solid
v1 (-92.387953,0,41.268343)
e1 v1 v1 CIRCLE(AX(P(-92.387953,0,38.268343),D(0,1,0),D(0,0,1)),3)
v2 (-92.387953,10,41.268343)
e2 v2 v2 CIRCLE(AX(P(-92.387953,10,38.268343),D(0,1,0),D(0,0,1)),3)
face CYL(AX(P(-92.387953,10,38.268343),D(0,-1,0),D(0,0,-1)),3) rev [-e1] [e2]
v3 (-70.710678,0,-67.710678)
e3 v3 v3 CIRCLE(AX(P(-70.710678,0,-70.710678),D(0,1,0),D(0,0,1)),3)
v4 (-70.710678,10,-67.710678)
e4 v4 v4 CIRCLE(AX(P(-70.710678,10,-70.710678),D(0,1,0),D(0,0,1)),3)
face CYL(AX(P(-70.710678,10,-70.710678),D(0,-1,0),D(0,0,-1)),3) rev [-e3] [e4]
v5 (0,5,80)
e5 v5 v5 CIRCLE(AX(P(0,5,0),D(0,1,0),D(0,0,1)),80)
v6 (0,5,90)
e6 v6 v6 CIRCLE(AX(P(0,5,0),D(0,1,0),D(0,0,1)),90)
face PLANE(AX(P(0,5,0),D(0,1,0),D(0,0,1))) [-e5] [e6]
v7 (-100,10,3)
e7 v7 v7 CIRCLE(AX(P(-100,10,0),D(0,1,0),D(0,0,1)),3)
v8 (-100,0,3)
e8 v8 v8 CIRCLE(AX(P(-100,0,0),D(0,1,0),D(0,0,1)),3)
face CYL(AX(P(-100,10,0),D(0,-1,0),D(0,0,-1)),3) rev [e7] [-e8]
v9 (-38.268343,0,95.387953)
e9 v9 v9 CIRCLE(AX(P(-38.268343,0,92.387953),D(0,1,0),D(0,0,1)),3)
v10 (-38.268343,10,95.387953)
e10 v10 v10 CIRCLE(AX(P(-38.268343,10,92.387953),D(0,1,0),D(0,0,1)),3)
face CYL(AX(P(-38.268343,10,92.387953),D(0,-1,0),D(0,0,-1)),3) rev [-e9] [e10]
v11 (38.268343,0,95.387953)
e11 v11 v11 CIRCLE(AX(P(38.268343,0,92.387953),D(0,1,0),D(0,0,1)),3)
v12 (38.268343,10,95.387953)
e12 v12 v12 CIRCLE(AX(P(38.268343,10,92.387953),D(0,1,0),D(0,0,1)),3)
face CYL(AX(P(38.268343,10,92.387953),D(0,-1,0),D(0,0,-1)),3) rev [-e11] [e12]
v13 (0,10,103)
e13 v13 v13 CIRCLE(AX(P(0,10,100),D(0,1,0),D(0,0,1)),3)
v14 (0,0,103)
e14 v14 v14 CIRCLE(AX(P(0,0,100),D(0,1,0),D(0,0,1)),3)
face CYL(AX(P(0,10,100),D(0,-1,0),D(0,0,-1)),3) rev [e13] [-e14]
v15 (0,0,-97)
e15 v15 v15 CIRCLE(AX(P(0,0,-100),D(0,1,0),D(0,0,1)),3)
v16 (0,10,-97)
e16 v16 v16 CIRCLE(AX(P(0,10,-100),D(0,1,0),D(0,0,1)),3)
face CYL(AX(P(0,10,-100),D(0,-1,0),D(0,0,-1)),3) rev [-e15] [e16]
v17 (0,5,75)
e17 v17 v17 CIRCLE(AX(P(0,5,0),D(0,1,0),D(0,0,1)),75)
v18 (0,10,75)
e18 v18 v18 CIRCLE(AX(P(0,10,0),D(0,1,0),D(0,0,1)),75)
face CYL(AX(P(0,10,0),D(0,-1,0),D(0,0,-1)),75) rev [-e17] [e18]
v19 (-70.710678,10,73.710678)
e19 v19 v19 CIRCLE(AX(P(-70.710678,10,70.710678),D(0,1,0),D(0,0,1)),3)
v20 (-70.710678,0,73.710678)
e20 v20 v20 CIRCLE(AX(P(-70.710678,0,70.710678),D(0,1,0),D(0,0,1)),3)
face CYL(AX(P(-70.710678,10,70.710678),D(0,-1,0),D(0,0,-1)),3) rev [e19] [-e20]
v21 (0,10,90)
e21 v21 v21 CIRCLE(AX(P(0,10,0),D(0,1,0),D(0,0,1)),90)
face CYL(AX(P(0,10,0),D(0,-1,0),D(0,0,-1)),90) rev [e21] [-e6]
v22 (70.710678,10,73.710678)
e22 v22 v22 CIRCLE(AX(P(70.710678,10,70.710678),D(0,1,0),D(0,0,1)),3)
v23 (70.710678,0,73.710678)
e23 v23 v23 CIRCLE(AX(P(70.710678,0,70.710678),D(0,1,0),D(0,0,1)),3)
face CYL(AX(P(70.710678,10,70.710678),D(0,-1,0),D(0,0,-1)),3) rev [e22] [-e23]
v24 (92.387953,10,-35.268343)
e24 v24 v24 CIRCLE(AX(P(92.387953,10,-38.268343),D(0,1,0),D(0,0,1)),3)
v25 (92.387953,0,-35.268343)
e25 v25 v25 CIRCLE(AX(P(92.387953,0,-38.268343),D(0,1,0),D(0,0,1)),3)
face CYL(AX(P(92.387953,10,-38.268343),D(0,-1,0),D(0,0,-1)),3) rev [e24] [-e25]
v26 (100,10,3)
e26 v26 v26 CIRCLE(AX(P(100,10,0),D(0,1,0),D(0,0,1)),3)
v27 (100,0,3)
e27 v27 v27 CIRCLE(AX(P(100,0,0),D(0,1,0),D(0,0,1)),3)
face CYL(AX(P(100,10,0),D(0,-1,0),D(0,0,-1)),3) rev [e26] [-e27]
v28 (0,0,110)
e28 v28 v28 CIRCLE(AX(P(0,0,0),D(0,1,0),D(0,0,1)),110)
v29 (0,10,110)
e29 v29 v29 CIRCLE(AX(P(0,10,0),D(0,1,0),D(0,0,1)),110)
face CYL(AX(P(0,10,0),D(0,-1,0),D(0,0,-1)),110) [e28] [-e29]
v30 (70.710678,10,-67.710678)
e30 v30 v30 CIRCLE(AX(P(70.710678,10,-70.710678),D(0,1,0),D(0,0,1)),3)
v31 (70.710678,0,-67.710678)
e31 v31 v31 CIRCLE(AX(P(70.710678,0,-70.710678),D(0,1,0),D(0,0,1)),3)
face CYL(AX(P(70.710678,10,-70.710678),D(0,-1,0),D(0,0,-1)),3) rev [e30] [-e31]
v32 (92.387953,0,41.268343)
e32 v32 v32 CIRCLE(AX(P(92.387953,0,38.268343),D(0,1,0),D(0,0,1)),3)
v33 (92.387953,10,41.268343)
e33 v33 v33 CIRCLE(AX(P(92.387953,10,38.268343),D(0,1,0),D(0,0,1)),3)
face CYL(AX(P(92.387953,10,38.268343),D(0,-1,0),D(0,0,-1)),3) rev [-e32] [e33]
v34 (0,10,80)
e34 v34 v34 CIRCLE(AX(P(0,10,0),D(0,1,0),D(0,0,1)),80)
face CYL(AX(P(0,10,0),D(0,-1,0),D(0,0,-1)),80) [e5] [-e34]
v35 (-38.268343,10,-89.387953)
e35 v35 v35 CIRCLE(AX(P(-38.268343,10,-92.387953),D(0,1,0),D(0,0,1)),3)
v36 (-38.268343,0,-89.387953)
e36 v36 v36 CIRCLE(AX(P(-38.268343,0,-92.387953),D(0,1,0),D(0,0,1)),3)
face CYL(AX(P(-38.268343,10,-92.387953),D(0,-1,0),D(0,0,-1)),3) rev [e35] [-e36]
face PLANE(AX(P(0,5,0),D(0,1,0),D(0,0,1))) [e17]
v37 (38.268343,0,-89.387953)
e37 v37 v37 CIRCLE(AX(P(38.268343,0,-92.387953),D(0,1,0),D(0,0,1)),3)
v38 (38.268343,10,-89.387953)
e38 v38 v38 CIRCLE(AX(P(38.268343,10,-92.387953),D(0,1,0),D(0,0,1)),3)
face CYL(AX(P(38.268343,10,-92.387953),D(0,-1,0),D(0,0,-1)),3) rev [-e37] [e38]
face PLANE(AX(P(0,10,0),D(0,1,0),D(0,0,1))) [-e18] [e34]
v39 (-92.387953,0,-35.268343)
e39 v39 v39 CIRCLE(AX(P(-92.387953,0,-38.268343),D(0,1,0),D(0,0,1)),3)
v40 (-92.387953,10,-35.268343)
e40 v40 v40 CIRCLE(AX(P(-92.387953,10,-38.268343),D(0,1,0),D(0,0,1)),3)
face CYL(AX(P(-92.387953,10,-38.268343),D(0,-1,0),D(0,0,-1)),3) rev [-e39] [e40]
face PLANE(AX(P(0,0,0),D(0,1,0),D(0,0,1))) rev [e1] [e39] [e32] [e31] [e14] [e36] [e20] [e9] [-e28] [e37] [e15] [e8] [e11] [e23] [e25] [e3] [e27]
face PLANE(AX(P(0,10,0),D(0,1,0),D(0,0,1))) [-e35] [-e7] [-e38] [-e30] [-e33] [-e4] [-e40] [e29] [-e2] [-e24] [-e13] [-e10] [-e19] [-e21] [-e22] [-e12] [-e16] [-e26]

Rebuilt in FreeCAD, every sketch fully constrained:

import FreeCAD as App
import Part
import Sketcher
from FreeCAD import Vector

doc = App.newDocument("Part")
params = doc.addObject("Spreadsheet::Sheet", "Params")
for row, (alias, value) in enumerate([
    ("sketch1_diameter", "220 mm"),
    ("sketch1_diameter2", "6 mm"),
    ("sketch1_diameter3", "180 mm"),
    ("pad1_length", "10 mm"),
    ("sketch2_diameter", "160 mm"),
    ("sketch2_diameter2", "150 mm"),
    ("pad2_length", "10 mm"),
    ("sketch3_diameter", "180 mm"),
    ("sketch3_diameter2", "160 mm"),
    ("sketch3_diameter3", "150 mm"),
    ("pad3_length", "5 mm"),
], start=1):
    params.set(f"A{row}", alias)
    params.set(f"B{row}", "=" + value)
    params.setAlias(f"B{row}", alias)

body = doc.addObject("PartDesign::Body", "Body")

sketch1 = body.newObject("Sketcher::SketchObject", "Sketch")
sketch1.AttachmentSupport = (doc.getObject("XZ_Plane"), [""])
sketch1.MapMode = "FlatFace"
sketch1.addGeometry([
    Part.Circle(Vector(0, 0, 0), Vector(0, 0, 1), 110),
    Part.Circle(Vector(-70.7, -70.7, 0), Vector(0, 0, 1), 3),
    Part.Circle(Vector(-92.4, -38.3, 0), Vector(0, 0, 1), 3),
    Part.Circle(Vector(-38.3, -92.4, 0), Vector(0, 0, 1), 3),
    Part.Circle(Vector(0, -100, 0), Vector(0, 0, 1), 3),
    Part.Circle(Vector(0, 0, 0), Vector(0, 0, 1), 90),
    Part.Circle(Vector(-100, 0, 0), Vector(0, 0, 1), 3),
    Part.Circle(Vector(-92.4, 38.3, 0), Vector(0, 0, 1), 3),
    Part.Circle(Vector(-70.7, 70.7, 0), Vector(0, 0, 1), 3),
    Part.Circle(Vector(-38.3, 92.4, 0), Vector(0, 0, 1), 3),
    Part.Circle(Vector(38.3, -92.4, 0), Vector(0, 0, 1), 3),
    Part.Circle(Vector(70.7, -70.7, 0), Vector(0, 0, 1), 3),
    Part.Circle(Vector(92.4, -38.3, 0), Vector(0, 0, 1), 3),
    Part.Circle(Vector(100, 0, 0), Vector(0, 0, 1), 3),
    Part.Circle(Vector(0, 100, 0), Vector(0, 0, 1), 3),
    Part.Circle(Vector(38.3, 92.4, 0), Vector(0, 0, 1), 3),
    Part.Circle(Vector(92.4, 38.3, 0), Vector(0, 0, 1), 3),
    Part.Circle(Vector(70.7, 70.7, 0), Vector(0, 0, 1), 3),
], False)
sketch1.addConstraint([
    Sketcher.Constraint("Coincident", 0, 3, -1, 1),
    Sketcher.Constraint("Coincident", 5, 3, -1, 1),
    Sketcher.Constraint("Equal", 1, 2),
    Sketcher.Constraint("Equal", 2, 3),
    Sketcher.Constraint("Equal", 3, 4),
    Sketcher.Constraint("Equal", 4, 6),
    Sketcher.Constraint("Equal", 6, 7),
    Sketcher.Constraint("Equal", 7, 8),
    Sketcher.Constraint("Equal", 8, 9),
    Sketcher.Constraint("Equal", 9, 10),
    Sketcher.Constraint("Equal", 10, 11),
    Sketcher.Constraint("Equal", 11, 12),
    Sketcher.Constraint("Equal", 12, 13),
    Sketcher.Constraint("Equal", 13, 14),
    Sketcher.Constraint("Equal", 14, 15),
    Sketcher.Constraint("Equal", 15, 16),
    Sketcher.Constraint("Equal", 16, 17),
    Sketcher.Constraint("Symmetric", 9, 3, 10, 3, -1, 1),
    Sketcher.Constraint("Symmetric", 8, 3, 11, 3, -1, 1),
    Sketcher.Constraint("Symmetric", 7, 3, 12, 3, -1, 1),
    Sketcher.Constraint("Symmetric", 6, 3, 13, 3, -1, 1),
    Sketcher.Constraint("Symmetric", 4, 3, 14, 3, -1, 1),
    Sketcher.Constraint("Symmetric", 3, 3, 15, 3, -1, 1),
    Sketcher.Constraint("Symmetric", 2, 3, 16, 3, -1, 1),
    Sketcher.Constraint("Symmetric", 1, 3, 17, 3, -1, 1),
    Sketcher.Constraint("Symmetric", 3, 3, 10, 3, -2),
    Sketcher.Constraint("Symmetric", 1, 3, 11, 3, -2),
    Sketcher.Constraint("Symmetric", 2, 3, 12, 3, -2),
    Sketcher.Constraint("PointOnObject", 4, 3, -2),
    Sketcher.Constraint("PointOnObject", 6, 3, -1),
    Sketcher.Constraint("Diameter", 0, 220.0),
    Sketcher.Constraint("Diameter", 1, 6.0),
    Sketcher.Constraint("Diameter", 5, 180.0),
    Sketcher.Constraint("DistanceY", 4, 3, -1, 1, 100.0),
    Sketcher.Constraint("DistanceX", 6, 3, -1, 1, 100.0),
    Sketcher.Constraint("DistanceX", 1, 3, -1, 1, 70.710678),
    Sketcher.Constraint("DistanceY", 1, 3, -1, 1, 70.710678),
    Sketcher.Constraint("DistanceX", 2, 3, 3, 3, 54.11961),
    Sketcher.Constraint("DistanceY", 3, 3, 2, 3, 54.11961),
    Sketcher.Constraint("DistanceY", 1, 3, 7, 3, 108.979021),
    Sketcher.Constraint("DistanceX", 1, 3, 10, 3, 108.979021),
])
sketch1.setExpression("Constraints[30]", "Params.sketch1_diameter")
sketch1.setExpression("Constraints[31]", "Params.sketch1_diameter2")
sketch1.setExpression("Constraints[32]", "Params.sketch1_diameter3")
pad1 = body.newObject("PartDesign::Pad", "Pad")
pad1.Profile = sketch1
pad1.setExpression("Length", "Params.pad1_length")
pad1.Reversed = True
body2 = doc.addObject("PartDesign::Body", "Body001")

sketch2 = body2.newObject("Sketcher::SketchObject", "Sketch001")
sketch2.AttachmentSupport = (doc.getObject("XZ_Plane001"), [""])
sketch2.MapMode = "FlatFace"
sketch2.addGeometry([
    Part.Circle(Vector(0, 0, 0), Vector(0, 0, 1), 80),
    Part.Circle(Vector(0, 0, 0), Vector(0, 0, 1), 75),
], False)
sketch2.addConstraint([
    Sketcher.Constraint("Coincident", 0, 3, -1, 1),
    Sketcher.Constraint("Coincident", 1, 3, -1, 1),
    Sketcher.Constraint("Diameter", 0, 160.0),
    Sketcher.Constraint("Diameter", 1, 150.0),
])
sketch2.setExpression("Constraints[2]", "Params.sketch2_diameter")
sketch2.setExpression("Constraints[3]", "Params.sketch2_diameter2")
pad2 = body2.newObject("PartDesign::Pad", "Pad001")
pad2.Profile = sketch2
pad2.setExpression("Length", "Params.pad2_length")
pad2.Reversed = True
body.AllowCompound = True
doc.recompute()

boolean = body.newObject("PartDesign::Boolean", "Boolean")
boolean.Type = "Fuse"
boolean.addObjects([body2])

sketch3 = body.newObject("Sketcher::SketchObject", "Sketch002")
sketch3.AttachmentSupport = (doc.getObject("XZ_Plane"), [""])
sketch3.MapMode = "FlatFace"
sketch3.addGeometry([
    Part.Circle(Vector(0, 0, 0), Vector(0, 0, 1), 90),
    Part.Circle(Vector(0, 0, 0), Vector(0, 0, 1), 80),
    Part.Circle(Vector(0, 0, 0), Vector(0, 0, 1), 75),
], False)
sketch3.addConstraint([
    Sketcher.Constraint("Coincident", 0, 3, -1, 1),
    Sketcher.Constraint("Coincident", 1, 3, -1, 1),
    Sketcher.Constraint("Coincident", 2, 3, -1, 1),
    Sketcher.Constraint("Diameter", 0, 180.0),
    Sketcher.Constraint("Diameter", 1, 160.0),
    Sketcher.Constraint("Diameter", 2, 150.0),
])
sketch3.setExpression("Constraints[3]", "Params.sketch3_diameter")
sketch3.setExpression("Constraints[4]", "Params.sketch3_diameter2")
sketch3.setExpression("Constraints[5]", "Params.sketch3_diameter3")
pad3 = body.newObject("PartDesign::Pad", "Pad002")
pad3.Profile = sketch3
pad3.setExpression("Length", "Params.pad3_length")
pad3.Reversed = True

doc.recompute()
